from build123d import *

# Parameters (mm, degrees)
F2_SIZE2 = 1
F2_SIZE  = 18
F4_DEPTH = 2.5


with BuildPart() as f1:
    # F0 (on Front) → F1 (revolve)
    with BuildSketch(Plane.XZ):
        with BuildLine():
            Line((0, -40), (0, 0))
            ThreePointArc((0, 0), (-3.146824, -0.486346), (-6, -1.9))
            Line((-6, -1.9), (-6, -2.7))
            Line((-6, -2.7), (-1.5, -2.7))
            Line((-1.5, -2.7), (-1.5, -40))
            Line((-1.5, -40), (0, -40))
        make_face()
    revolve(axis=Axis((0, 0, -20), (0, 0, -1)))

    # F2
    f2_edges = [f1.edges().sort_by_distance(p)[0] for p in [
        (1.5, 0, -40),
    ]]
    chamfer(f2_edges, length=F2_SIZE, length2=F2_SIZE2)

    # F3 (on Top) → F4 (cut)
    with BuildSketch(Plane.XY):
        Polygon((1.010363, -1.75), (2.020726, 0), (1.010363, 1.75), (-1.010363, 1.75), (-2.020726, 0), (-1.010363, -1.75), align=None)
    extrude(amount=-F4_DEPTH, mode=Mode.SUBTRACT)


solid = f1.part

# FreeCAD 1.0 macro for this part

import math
import FreeCAD as App
import Part
import Sketcher

V = App.Vector
Q = App.Units.Quantity


def edges_at(feature, points):
    """Names of the edges that pass closest to the given points."""
    edges = feature.Shape.Edges
    near = lambda p: min(range(len(edges)), key=lambda i: edges[i].distToShape(Part.Vertex(*p))[0])
    return sorted({f"Edge{near(p) + 1}" for p in points})


def add_polygon(sketch, points):
    """Adds a closed chain of lines whose ends are joined by coincident constraints."""
    first, n = sketch.GeometryCount, len(points)
    for a, b in zip(points, points[1:] + points[:1]):
        sketch.addGeometry(Part.LineSegment(App.Vector(*a, 0), App.Vector(*b, 0)), False)
    for i in range(n):
        sketch.addConstraint(Sketcher.Constraint("Coincident", first + i, 2, first + (i + 1) % n, 1))

doc = App.newDocument("Part")
params = doc.addObject("Spreadsheet::Sheet", "Params")
for row, (alias, value) in enumerate([
    ("sketch1_height", "40 mm"),
    ("sketch1_width", "4.5 mm"),
    ("sketch1_width2", "1.5 mm"),
    ("sketch1_height2", "0.8 mm"),
    ("sketch1_height3", "37.3 mm"),
    ("revolution_angle", "360 deg"),
    ("chamfer_size", "18 mm"),
    ("chamfer_size2", "1 mm"),
    ("pocket1_length", "2.5 mm"),
], start=1):
    params.set(f"A{row}", alias)
    params.set(f"B{row}", "=" + value)
    params.setAlias(f"B{row}", alias)

body = doc.addObject("PartDesign::Body", "Body")

sketch1 = body.newObject("Sketcher::SketchObject", "Sketch")
sketch1.AttachmentSupport = (doc.getObject("XZ_Plane"), [""])
sketch1.MapMode = "FlatFace"
sketch1.addGeometry(Part.LineSegment(V(0, -40, 0), V(0, 0, 0)), False)
sketch1.addGeometry(Part.ArcOfCircle(Part.Circle(V(0, -10.4, 0), V(0, 0, 1), 10.4), math.radians(90), math.radians(125)), False)
sketch1.addGeometry(Part.LineSegment(V(-6, -1.9, 0), V(-6, -2.7, 0)), False)
sketch1.addGeometry(Part.LineSegment(V(-6, -2.7, 0), V(-1.5, -2.7, 0)), False)
sketch1.addGeometry(Part.LineSegment(V(-1.5, -2.7, 0), V(-1.5, -40, 0)), False)
sketch1.addGeometry(Part.LineSegment(V(-1.5, -40, 0), V(0, -40, 0)), False)
sketch1.addConstraint(Sketcher.Constraint("Coincident", 0, 2, 1, 1))
sketch1.addConstraint(Sketcher.Constraint("Coincident", 1, 2, 2, 1))
sketch1.addConstraint(Sketcher.Constraint("Coincident", 2, 2, 3, 1))
sketch1.addConstraint(Sketcher.Constraint("Coincident", 3, 2, 4, 1))
sketch1.addConstraint(Sketcher.Constraint("Coincident", 4, 2, 5, 1))
sketch1.addConstraint(Sketcher.Constraint("Coincident", 5, 2, 0, 1))
sketch1.addConstraint(Sketcher.Constraint("Vertical", 0))
sketch1.addConstraint(Sketcher.Constraint("Vertical", 2))
sketch1.addConstraint(Sketcher.Constraint("Horizontal", 3))
sketch1.addConstraint(Sketcher.Constraint("Vertical", 4))
sketch1.addConstraint(Sketcher.Constraint("Horizontal", 5))
sketch1.addConstraint(Sketcher.Constraint("Coincident", 0, 2, -1, 1))
sketch1.addConstraint(Sketcher.Constraint("PointOnObject", 1, 3, -2))
sketch1.addConstraint(Sketcher.Constraint("DistanceY", 0, 1, 0, 2, Q("40 mm")))
sketch1.addConstraint(Sketcher.Constraint("DistanceX", 3, 1, 3, 2, Q("4.5 mm")))
sketch1.addConstraint(Sketcher.Constraint("DistanceX", 5, 1, 5, 2, Q("1.5 mm")))
sketch1.addConstraint(Sketcher.Constraint("DistanceY", 2, 2, 2, 1, Q("0.8 mm")))
sketch1.addConstraint(Sketcher.Constraint("DistanceY", 4, 2, 4, 1, Q("37.3 mm")))
sketch1.setExpression("Constraints[13]", "Params.sketch1_height")
sketch1.setExpression("Constraints[14]", "Params.sketch1_width")
sketch1.setExpression("Constraints[15]", "Params.sketch1_width2")
sketch1.setExpression("Constraints[16]", "Params.sketch1_height2")
sketch1.setExpression("Constraints[17]", "Params.sketch1_height3")
revolution = body.newObject("PartDesign::Revolution", "Revolution")
revolution.Profile = sketch1
revolution.ReferenceAxis = (sketch1, ["V_Axis"])
revolution.setExpression("Angle", "Params.revolution_angle")
doc.recompute()

chamfer = body.newObject("PartDesign::Chamfer", "Chamfer")
chamfer.Base = (revolution, edges_at(revolution, [(1.5, 0, -40)]))
chamfer.ChamferType = "Two distances"
chamfer.setExpression("Size", "Params.chamfer_size")
chamfer.setExpression("Size2", "Params.chamfer_size2")

sketch2 = body.newObject("Sketcher::SketchObject", "Sketch001")
sketch2.AttachmentSupport = (doc.getObject("XY_Plane"), [""])
sketch2.MapMode = "FlatFace"
add_polygon(sketch2, [(1, -1.8), (2, 0), (1, 1.8), (-1, 1.8), (-2, 0), (-1, -1.8)])
sketch2.addConstraint(Sketcher.Constraint("Horizontal", 2))
sketch2.addConstraint(Sketcher.Constraint("Horizontal", 5))
sketch2.addConstraint(Sketcher.Constraint("Symmetric", 0, 2, 3, 2, -1, 1))
sketch2.addConstraint(Sketcher.Constraint("Symmetric", 1, 2, 4, 2, -1, 1))
sketch2.addConstraint(Sketcher.Constraint("PointOnObject", 0, 2, -1))
sketch2.addConstraint(Sketcher.Constraint("Parallel", 0, 3))
sketch2.addConstraint(Sketcher.Constraint("Vertical", 2, 2, 4, 2))
sketch2.addConstraint(Sketcher.Constraint("Angle", 0, Q("59.999999 deg")))
sketch2.addConstraint(Sketcher.Constraint("DistanceY", 4, 2, 2, 2, Q("3.5 mm")))
sketch2.addConstraint(Sketcher.Constraint("DistanceX", 2, 2, 2, 1, Q("2.020726 mm")))
pocket1 = body.newObject("PartDesign::Pocket", "Pocket")
pocket1.Profile = sketch2
pocket1.setExpression("Length", "Params.pocket1_length")

doc.recompute()
